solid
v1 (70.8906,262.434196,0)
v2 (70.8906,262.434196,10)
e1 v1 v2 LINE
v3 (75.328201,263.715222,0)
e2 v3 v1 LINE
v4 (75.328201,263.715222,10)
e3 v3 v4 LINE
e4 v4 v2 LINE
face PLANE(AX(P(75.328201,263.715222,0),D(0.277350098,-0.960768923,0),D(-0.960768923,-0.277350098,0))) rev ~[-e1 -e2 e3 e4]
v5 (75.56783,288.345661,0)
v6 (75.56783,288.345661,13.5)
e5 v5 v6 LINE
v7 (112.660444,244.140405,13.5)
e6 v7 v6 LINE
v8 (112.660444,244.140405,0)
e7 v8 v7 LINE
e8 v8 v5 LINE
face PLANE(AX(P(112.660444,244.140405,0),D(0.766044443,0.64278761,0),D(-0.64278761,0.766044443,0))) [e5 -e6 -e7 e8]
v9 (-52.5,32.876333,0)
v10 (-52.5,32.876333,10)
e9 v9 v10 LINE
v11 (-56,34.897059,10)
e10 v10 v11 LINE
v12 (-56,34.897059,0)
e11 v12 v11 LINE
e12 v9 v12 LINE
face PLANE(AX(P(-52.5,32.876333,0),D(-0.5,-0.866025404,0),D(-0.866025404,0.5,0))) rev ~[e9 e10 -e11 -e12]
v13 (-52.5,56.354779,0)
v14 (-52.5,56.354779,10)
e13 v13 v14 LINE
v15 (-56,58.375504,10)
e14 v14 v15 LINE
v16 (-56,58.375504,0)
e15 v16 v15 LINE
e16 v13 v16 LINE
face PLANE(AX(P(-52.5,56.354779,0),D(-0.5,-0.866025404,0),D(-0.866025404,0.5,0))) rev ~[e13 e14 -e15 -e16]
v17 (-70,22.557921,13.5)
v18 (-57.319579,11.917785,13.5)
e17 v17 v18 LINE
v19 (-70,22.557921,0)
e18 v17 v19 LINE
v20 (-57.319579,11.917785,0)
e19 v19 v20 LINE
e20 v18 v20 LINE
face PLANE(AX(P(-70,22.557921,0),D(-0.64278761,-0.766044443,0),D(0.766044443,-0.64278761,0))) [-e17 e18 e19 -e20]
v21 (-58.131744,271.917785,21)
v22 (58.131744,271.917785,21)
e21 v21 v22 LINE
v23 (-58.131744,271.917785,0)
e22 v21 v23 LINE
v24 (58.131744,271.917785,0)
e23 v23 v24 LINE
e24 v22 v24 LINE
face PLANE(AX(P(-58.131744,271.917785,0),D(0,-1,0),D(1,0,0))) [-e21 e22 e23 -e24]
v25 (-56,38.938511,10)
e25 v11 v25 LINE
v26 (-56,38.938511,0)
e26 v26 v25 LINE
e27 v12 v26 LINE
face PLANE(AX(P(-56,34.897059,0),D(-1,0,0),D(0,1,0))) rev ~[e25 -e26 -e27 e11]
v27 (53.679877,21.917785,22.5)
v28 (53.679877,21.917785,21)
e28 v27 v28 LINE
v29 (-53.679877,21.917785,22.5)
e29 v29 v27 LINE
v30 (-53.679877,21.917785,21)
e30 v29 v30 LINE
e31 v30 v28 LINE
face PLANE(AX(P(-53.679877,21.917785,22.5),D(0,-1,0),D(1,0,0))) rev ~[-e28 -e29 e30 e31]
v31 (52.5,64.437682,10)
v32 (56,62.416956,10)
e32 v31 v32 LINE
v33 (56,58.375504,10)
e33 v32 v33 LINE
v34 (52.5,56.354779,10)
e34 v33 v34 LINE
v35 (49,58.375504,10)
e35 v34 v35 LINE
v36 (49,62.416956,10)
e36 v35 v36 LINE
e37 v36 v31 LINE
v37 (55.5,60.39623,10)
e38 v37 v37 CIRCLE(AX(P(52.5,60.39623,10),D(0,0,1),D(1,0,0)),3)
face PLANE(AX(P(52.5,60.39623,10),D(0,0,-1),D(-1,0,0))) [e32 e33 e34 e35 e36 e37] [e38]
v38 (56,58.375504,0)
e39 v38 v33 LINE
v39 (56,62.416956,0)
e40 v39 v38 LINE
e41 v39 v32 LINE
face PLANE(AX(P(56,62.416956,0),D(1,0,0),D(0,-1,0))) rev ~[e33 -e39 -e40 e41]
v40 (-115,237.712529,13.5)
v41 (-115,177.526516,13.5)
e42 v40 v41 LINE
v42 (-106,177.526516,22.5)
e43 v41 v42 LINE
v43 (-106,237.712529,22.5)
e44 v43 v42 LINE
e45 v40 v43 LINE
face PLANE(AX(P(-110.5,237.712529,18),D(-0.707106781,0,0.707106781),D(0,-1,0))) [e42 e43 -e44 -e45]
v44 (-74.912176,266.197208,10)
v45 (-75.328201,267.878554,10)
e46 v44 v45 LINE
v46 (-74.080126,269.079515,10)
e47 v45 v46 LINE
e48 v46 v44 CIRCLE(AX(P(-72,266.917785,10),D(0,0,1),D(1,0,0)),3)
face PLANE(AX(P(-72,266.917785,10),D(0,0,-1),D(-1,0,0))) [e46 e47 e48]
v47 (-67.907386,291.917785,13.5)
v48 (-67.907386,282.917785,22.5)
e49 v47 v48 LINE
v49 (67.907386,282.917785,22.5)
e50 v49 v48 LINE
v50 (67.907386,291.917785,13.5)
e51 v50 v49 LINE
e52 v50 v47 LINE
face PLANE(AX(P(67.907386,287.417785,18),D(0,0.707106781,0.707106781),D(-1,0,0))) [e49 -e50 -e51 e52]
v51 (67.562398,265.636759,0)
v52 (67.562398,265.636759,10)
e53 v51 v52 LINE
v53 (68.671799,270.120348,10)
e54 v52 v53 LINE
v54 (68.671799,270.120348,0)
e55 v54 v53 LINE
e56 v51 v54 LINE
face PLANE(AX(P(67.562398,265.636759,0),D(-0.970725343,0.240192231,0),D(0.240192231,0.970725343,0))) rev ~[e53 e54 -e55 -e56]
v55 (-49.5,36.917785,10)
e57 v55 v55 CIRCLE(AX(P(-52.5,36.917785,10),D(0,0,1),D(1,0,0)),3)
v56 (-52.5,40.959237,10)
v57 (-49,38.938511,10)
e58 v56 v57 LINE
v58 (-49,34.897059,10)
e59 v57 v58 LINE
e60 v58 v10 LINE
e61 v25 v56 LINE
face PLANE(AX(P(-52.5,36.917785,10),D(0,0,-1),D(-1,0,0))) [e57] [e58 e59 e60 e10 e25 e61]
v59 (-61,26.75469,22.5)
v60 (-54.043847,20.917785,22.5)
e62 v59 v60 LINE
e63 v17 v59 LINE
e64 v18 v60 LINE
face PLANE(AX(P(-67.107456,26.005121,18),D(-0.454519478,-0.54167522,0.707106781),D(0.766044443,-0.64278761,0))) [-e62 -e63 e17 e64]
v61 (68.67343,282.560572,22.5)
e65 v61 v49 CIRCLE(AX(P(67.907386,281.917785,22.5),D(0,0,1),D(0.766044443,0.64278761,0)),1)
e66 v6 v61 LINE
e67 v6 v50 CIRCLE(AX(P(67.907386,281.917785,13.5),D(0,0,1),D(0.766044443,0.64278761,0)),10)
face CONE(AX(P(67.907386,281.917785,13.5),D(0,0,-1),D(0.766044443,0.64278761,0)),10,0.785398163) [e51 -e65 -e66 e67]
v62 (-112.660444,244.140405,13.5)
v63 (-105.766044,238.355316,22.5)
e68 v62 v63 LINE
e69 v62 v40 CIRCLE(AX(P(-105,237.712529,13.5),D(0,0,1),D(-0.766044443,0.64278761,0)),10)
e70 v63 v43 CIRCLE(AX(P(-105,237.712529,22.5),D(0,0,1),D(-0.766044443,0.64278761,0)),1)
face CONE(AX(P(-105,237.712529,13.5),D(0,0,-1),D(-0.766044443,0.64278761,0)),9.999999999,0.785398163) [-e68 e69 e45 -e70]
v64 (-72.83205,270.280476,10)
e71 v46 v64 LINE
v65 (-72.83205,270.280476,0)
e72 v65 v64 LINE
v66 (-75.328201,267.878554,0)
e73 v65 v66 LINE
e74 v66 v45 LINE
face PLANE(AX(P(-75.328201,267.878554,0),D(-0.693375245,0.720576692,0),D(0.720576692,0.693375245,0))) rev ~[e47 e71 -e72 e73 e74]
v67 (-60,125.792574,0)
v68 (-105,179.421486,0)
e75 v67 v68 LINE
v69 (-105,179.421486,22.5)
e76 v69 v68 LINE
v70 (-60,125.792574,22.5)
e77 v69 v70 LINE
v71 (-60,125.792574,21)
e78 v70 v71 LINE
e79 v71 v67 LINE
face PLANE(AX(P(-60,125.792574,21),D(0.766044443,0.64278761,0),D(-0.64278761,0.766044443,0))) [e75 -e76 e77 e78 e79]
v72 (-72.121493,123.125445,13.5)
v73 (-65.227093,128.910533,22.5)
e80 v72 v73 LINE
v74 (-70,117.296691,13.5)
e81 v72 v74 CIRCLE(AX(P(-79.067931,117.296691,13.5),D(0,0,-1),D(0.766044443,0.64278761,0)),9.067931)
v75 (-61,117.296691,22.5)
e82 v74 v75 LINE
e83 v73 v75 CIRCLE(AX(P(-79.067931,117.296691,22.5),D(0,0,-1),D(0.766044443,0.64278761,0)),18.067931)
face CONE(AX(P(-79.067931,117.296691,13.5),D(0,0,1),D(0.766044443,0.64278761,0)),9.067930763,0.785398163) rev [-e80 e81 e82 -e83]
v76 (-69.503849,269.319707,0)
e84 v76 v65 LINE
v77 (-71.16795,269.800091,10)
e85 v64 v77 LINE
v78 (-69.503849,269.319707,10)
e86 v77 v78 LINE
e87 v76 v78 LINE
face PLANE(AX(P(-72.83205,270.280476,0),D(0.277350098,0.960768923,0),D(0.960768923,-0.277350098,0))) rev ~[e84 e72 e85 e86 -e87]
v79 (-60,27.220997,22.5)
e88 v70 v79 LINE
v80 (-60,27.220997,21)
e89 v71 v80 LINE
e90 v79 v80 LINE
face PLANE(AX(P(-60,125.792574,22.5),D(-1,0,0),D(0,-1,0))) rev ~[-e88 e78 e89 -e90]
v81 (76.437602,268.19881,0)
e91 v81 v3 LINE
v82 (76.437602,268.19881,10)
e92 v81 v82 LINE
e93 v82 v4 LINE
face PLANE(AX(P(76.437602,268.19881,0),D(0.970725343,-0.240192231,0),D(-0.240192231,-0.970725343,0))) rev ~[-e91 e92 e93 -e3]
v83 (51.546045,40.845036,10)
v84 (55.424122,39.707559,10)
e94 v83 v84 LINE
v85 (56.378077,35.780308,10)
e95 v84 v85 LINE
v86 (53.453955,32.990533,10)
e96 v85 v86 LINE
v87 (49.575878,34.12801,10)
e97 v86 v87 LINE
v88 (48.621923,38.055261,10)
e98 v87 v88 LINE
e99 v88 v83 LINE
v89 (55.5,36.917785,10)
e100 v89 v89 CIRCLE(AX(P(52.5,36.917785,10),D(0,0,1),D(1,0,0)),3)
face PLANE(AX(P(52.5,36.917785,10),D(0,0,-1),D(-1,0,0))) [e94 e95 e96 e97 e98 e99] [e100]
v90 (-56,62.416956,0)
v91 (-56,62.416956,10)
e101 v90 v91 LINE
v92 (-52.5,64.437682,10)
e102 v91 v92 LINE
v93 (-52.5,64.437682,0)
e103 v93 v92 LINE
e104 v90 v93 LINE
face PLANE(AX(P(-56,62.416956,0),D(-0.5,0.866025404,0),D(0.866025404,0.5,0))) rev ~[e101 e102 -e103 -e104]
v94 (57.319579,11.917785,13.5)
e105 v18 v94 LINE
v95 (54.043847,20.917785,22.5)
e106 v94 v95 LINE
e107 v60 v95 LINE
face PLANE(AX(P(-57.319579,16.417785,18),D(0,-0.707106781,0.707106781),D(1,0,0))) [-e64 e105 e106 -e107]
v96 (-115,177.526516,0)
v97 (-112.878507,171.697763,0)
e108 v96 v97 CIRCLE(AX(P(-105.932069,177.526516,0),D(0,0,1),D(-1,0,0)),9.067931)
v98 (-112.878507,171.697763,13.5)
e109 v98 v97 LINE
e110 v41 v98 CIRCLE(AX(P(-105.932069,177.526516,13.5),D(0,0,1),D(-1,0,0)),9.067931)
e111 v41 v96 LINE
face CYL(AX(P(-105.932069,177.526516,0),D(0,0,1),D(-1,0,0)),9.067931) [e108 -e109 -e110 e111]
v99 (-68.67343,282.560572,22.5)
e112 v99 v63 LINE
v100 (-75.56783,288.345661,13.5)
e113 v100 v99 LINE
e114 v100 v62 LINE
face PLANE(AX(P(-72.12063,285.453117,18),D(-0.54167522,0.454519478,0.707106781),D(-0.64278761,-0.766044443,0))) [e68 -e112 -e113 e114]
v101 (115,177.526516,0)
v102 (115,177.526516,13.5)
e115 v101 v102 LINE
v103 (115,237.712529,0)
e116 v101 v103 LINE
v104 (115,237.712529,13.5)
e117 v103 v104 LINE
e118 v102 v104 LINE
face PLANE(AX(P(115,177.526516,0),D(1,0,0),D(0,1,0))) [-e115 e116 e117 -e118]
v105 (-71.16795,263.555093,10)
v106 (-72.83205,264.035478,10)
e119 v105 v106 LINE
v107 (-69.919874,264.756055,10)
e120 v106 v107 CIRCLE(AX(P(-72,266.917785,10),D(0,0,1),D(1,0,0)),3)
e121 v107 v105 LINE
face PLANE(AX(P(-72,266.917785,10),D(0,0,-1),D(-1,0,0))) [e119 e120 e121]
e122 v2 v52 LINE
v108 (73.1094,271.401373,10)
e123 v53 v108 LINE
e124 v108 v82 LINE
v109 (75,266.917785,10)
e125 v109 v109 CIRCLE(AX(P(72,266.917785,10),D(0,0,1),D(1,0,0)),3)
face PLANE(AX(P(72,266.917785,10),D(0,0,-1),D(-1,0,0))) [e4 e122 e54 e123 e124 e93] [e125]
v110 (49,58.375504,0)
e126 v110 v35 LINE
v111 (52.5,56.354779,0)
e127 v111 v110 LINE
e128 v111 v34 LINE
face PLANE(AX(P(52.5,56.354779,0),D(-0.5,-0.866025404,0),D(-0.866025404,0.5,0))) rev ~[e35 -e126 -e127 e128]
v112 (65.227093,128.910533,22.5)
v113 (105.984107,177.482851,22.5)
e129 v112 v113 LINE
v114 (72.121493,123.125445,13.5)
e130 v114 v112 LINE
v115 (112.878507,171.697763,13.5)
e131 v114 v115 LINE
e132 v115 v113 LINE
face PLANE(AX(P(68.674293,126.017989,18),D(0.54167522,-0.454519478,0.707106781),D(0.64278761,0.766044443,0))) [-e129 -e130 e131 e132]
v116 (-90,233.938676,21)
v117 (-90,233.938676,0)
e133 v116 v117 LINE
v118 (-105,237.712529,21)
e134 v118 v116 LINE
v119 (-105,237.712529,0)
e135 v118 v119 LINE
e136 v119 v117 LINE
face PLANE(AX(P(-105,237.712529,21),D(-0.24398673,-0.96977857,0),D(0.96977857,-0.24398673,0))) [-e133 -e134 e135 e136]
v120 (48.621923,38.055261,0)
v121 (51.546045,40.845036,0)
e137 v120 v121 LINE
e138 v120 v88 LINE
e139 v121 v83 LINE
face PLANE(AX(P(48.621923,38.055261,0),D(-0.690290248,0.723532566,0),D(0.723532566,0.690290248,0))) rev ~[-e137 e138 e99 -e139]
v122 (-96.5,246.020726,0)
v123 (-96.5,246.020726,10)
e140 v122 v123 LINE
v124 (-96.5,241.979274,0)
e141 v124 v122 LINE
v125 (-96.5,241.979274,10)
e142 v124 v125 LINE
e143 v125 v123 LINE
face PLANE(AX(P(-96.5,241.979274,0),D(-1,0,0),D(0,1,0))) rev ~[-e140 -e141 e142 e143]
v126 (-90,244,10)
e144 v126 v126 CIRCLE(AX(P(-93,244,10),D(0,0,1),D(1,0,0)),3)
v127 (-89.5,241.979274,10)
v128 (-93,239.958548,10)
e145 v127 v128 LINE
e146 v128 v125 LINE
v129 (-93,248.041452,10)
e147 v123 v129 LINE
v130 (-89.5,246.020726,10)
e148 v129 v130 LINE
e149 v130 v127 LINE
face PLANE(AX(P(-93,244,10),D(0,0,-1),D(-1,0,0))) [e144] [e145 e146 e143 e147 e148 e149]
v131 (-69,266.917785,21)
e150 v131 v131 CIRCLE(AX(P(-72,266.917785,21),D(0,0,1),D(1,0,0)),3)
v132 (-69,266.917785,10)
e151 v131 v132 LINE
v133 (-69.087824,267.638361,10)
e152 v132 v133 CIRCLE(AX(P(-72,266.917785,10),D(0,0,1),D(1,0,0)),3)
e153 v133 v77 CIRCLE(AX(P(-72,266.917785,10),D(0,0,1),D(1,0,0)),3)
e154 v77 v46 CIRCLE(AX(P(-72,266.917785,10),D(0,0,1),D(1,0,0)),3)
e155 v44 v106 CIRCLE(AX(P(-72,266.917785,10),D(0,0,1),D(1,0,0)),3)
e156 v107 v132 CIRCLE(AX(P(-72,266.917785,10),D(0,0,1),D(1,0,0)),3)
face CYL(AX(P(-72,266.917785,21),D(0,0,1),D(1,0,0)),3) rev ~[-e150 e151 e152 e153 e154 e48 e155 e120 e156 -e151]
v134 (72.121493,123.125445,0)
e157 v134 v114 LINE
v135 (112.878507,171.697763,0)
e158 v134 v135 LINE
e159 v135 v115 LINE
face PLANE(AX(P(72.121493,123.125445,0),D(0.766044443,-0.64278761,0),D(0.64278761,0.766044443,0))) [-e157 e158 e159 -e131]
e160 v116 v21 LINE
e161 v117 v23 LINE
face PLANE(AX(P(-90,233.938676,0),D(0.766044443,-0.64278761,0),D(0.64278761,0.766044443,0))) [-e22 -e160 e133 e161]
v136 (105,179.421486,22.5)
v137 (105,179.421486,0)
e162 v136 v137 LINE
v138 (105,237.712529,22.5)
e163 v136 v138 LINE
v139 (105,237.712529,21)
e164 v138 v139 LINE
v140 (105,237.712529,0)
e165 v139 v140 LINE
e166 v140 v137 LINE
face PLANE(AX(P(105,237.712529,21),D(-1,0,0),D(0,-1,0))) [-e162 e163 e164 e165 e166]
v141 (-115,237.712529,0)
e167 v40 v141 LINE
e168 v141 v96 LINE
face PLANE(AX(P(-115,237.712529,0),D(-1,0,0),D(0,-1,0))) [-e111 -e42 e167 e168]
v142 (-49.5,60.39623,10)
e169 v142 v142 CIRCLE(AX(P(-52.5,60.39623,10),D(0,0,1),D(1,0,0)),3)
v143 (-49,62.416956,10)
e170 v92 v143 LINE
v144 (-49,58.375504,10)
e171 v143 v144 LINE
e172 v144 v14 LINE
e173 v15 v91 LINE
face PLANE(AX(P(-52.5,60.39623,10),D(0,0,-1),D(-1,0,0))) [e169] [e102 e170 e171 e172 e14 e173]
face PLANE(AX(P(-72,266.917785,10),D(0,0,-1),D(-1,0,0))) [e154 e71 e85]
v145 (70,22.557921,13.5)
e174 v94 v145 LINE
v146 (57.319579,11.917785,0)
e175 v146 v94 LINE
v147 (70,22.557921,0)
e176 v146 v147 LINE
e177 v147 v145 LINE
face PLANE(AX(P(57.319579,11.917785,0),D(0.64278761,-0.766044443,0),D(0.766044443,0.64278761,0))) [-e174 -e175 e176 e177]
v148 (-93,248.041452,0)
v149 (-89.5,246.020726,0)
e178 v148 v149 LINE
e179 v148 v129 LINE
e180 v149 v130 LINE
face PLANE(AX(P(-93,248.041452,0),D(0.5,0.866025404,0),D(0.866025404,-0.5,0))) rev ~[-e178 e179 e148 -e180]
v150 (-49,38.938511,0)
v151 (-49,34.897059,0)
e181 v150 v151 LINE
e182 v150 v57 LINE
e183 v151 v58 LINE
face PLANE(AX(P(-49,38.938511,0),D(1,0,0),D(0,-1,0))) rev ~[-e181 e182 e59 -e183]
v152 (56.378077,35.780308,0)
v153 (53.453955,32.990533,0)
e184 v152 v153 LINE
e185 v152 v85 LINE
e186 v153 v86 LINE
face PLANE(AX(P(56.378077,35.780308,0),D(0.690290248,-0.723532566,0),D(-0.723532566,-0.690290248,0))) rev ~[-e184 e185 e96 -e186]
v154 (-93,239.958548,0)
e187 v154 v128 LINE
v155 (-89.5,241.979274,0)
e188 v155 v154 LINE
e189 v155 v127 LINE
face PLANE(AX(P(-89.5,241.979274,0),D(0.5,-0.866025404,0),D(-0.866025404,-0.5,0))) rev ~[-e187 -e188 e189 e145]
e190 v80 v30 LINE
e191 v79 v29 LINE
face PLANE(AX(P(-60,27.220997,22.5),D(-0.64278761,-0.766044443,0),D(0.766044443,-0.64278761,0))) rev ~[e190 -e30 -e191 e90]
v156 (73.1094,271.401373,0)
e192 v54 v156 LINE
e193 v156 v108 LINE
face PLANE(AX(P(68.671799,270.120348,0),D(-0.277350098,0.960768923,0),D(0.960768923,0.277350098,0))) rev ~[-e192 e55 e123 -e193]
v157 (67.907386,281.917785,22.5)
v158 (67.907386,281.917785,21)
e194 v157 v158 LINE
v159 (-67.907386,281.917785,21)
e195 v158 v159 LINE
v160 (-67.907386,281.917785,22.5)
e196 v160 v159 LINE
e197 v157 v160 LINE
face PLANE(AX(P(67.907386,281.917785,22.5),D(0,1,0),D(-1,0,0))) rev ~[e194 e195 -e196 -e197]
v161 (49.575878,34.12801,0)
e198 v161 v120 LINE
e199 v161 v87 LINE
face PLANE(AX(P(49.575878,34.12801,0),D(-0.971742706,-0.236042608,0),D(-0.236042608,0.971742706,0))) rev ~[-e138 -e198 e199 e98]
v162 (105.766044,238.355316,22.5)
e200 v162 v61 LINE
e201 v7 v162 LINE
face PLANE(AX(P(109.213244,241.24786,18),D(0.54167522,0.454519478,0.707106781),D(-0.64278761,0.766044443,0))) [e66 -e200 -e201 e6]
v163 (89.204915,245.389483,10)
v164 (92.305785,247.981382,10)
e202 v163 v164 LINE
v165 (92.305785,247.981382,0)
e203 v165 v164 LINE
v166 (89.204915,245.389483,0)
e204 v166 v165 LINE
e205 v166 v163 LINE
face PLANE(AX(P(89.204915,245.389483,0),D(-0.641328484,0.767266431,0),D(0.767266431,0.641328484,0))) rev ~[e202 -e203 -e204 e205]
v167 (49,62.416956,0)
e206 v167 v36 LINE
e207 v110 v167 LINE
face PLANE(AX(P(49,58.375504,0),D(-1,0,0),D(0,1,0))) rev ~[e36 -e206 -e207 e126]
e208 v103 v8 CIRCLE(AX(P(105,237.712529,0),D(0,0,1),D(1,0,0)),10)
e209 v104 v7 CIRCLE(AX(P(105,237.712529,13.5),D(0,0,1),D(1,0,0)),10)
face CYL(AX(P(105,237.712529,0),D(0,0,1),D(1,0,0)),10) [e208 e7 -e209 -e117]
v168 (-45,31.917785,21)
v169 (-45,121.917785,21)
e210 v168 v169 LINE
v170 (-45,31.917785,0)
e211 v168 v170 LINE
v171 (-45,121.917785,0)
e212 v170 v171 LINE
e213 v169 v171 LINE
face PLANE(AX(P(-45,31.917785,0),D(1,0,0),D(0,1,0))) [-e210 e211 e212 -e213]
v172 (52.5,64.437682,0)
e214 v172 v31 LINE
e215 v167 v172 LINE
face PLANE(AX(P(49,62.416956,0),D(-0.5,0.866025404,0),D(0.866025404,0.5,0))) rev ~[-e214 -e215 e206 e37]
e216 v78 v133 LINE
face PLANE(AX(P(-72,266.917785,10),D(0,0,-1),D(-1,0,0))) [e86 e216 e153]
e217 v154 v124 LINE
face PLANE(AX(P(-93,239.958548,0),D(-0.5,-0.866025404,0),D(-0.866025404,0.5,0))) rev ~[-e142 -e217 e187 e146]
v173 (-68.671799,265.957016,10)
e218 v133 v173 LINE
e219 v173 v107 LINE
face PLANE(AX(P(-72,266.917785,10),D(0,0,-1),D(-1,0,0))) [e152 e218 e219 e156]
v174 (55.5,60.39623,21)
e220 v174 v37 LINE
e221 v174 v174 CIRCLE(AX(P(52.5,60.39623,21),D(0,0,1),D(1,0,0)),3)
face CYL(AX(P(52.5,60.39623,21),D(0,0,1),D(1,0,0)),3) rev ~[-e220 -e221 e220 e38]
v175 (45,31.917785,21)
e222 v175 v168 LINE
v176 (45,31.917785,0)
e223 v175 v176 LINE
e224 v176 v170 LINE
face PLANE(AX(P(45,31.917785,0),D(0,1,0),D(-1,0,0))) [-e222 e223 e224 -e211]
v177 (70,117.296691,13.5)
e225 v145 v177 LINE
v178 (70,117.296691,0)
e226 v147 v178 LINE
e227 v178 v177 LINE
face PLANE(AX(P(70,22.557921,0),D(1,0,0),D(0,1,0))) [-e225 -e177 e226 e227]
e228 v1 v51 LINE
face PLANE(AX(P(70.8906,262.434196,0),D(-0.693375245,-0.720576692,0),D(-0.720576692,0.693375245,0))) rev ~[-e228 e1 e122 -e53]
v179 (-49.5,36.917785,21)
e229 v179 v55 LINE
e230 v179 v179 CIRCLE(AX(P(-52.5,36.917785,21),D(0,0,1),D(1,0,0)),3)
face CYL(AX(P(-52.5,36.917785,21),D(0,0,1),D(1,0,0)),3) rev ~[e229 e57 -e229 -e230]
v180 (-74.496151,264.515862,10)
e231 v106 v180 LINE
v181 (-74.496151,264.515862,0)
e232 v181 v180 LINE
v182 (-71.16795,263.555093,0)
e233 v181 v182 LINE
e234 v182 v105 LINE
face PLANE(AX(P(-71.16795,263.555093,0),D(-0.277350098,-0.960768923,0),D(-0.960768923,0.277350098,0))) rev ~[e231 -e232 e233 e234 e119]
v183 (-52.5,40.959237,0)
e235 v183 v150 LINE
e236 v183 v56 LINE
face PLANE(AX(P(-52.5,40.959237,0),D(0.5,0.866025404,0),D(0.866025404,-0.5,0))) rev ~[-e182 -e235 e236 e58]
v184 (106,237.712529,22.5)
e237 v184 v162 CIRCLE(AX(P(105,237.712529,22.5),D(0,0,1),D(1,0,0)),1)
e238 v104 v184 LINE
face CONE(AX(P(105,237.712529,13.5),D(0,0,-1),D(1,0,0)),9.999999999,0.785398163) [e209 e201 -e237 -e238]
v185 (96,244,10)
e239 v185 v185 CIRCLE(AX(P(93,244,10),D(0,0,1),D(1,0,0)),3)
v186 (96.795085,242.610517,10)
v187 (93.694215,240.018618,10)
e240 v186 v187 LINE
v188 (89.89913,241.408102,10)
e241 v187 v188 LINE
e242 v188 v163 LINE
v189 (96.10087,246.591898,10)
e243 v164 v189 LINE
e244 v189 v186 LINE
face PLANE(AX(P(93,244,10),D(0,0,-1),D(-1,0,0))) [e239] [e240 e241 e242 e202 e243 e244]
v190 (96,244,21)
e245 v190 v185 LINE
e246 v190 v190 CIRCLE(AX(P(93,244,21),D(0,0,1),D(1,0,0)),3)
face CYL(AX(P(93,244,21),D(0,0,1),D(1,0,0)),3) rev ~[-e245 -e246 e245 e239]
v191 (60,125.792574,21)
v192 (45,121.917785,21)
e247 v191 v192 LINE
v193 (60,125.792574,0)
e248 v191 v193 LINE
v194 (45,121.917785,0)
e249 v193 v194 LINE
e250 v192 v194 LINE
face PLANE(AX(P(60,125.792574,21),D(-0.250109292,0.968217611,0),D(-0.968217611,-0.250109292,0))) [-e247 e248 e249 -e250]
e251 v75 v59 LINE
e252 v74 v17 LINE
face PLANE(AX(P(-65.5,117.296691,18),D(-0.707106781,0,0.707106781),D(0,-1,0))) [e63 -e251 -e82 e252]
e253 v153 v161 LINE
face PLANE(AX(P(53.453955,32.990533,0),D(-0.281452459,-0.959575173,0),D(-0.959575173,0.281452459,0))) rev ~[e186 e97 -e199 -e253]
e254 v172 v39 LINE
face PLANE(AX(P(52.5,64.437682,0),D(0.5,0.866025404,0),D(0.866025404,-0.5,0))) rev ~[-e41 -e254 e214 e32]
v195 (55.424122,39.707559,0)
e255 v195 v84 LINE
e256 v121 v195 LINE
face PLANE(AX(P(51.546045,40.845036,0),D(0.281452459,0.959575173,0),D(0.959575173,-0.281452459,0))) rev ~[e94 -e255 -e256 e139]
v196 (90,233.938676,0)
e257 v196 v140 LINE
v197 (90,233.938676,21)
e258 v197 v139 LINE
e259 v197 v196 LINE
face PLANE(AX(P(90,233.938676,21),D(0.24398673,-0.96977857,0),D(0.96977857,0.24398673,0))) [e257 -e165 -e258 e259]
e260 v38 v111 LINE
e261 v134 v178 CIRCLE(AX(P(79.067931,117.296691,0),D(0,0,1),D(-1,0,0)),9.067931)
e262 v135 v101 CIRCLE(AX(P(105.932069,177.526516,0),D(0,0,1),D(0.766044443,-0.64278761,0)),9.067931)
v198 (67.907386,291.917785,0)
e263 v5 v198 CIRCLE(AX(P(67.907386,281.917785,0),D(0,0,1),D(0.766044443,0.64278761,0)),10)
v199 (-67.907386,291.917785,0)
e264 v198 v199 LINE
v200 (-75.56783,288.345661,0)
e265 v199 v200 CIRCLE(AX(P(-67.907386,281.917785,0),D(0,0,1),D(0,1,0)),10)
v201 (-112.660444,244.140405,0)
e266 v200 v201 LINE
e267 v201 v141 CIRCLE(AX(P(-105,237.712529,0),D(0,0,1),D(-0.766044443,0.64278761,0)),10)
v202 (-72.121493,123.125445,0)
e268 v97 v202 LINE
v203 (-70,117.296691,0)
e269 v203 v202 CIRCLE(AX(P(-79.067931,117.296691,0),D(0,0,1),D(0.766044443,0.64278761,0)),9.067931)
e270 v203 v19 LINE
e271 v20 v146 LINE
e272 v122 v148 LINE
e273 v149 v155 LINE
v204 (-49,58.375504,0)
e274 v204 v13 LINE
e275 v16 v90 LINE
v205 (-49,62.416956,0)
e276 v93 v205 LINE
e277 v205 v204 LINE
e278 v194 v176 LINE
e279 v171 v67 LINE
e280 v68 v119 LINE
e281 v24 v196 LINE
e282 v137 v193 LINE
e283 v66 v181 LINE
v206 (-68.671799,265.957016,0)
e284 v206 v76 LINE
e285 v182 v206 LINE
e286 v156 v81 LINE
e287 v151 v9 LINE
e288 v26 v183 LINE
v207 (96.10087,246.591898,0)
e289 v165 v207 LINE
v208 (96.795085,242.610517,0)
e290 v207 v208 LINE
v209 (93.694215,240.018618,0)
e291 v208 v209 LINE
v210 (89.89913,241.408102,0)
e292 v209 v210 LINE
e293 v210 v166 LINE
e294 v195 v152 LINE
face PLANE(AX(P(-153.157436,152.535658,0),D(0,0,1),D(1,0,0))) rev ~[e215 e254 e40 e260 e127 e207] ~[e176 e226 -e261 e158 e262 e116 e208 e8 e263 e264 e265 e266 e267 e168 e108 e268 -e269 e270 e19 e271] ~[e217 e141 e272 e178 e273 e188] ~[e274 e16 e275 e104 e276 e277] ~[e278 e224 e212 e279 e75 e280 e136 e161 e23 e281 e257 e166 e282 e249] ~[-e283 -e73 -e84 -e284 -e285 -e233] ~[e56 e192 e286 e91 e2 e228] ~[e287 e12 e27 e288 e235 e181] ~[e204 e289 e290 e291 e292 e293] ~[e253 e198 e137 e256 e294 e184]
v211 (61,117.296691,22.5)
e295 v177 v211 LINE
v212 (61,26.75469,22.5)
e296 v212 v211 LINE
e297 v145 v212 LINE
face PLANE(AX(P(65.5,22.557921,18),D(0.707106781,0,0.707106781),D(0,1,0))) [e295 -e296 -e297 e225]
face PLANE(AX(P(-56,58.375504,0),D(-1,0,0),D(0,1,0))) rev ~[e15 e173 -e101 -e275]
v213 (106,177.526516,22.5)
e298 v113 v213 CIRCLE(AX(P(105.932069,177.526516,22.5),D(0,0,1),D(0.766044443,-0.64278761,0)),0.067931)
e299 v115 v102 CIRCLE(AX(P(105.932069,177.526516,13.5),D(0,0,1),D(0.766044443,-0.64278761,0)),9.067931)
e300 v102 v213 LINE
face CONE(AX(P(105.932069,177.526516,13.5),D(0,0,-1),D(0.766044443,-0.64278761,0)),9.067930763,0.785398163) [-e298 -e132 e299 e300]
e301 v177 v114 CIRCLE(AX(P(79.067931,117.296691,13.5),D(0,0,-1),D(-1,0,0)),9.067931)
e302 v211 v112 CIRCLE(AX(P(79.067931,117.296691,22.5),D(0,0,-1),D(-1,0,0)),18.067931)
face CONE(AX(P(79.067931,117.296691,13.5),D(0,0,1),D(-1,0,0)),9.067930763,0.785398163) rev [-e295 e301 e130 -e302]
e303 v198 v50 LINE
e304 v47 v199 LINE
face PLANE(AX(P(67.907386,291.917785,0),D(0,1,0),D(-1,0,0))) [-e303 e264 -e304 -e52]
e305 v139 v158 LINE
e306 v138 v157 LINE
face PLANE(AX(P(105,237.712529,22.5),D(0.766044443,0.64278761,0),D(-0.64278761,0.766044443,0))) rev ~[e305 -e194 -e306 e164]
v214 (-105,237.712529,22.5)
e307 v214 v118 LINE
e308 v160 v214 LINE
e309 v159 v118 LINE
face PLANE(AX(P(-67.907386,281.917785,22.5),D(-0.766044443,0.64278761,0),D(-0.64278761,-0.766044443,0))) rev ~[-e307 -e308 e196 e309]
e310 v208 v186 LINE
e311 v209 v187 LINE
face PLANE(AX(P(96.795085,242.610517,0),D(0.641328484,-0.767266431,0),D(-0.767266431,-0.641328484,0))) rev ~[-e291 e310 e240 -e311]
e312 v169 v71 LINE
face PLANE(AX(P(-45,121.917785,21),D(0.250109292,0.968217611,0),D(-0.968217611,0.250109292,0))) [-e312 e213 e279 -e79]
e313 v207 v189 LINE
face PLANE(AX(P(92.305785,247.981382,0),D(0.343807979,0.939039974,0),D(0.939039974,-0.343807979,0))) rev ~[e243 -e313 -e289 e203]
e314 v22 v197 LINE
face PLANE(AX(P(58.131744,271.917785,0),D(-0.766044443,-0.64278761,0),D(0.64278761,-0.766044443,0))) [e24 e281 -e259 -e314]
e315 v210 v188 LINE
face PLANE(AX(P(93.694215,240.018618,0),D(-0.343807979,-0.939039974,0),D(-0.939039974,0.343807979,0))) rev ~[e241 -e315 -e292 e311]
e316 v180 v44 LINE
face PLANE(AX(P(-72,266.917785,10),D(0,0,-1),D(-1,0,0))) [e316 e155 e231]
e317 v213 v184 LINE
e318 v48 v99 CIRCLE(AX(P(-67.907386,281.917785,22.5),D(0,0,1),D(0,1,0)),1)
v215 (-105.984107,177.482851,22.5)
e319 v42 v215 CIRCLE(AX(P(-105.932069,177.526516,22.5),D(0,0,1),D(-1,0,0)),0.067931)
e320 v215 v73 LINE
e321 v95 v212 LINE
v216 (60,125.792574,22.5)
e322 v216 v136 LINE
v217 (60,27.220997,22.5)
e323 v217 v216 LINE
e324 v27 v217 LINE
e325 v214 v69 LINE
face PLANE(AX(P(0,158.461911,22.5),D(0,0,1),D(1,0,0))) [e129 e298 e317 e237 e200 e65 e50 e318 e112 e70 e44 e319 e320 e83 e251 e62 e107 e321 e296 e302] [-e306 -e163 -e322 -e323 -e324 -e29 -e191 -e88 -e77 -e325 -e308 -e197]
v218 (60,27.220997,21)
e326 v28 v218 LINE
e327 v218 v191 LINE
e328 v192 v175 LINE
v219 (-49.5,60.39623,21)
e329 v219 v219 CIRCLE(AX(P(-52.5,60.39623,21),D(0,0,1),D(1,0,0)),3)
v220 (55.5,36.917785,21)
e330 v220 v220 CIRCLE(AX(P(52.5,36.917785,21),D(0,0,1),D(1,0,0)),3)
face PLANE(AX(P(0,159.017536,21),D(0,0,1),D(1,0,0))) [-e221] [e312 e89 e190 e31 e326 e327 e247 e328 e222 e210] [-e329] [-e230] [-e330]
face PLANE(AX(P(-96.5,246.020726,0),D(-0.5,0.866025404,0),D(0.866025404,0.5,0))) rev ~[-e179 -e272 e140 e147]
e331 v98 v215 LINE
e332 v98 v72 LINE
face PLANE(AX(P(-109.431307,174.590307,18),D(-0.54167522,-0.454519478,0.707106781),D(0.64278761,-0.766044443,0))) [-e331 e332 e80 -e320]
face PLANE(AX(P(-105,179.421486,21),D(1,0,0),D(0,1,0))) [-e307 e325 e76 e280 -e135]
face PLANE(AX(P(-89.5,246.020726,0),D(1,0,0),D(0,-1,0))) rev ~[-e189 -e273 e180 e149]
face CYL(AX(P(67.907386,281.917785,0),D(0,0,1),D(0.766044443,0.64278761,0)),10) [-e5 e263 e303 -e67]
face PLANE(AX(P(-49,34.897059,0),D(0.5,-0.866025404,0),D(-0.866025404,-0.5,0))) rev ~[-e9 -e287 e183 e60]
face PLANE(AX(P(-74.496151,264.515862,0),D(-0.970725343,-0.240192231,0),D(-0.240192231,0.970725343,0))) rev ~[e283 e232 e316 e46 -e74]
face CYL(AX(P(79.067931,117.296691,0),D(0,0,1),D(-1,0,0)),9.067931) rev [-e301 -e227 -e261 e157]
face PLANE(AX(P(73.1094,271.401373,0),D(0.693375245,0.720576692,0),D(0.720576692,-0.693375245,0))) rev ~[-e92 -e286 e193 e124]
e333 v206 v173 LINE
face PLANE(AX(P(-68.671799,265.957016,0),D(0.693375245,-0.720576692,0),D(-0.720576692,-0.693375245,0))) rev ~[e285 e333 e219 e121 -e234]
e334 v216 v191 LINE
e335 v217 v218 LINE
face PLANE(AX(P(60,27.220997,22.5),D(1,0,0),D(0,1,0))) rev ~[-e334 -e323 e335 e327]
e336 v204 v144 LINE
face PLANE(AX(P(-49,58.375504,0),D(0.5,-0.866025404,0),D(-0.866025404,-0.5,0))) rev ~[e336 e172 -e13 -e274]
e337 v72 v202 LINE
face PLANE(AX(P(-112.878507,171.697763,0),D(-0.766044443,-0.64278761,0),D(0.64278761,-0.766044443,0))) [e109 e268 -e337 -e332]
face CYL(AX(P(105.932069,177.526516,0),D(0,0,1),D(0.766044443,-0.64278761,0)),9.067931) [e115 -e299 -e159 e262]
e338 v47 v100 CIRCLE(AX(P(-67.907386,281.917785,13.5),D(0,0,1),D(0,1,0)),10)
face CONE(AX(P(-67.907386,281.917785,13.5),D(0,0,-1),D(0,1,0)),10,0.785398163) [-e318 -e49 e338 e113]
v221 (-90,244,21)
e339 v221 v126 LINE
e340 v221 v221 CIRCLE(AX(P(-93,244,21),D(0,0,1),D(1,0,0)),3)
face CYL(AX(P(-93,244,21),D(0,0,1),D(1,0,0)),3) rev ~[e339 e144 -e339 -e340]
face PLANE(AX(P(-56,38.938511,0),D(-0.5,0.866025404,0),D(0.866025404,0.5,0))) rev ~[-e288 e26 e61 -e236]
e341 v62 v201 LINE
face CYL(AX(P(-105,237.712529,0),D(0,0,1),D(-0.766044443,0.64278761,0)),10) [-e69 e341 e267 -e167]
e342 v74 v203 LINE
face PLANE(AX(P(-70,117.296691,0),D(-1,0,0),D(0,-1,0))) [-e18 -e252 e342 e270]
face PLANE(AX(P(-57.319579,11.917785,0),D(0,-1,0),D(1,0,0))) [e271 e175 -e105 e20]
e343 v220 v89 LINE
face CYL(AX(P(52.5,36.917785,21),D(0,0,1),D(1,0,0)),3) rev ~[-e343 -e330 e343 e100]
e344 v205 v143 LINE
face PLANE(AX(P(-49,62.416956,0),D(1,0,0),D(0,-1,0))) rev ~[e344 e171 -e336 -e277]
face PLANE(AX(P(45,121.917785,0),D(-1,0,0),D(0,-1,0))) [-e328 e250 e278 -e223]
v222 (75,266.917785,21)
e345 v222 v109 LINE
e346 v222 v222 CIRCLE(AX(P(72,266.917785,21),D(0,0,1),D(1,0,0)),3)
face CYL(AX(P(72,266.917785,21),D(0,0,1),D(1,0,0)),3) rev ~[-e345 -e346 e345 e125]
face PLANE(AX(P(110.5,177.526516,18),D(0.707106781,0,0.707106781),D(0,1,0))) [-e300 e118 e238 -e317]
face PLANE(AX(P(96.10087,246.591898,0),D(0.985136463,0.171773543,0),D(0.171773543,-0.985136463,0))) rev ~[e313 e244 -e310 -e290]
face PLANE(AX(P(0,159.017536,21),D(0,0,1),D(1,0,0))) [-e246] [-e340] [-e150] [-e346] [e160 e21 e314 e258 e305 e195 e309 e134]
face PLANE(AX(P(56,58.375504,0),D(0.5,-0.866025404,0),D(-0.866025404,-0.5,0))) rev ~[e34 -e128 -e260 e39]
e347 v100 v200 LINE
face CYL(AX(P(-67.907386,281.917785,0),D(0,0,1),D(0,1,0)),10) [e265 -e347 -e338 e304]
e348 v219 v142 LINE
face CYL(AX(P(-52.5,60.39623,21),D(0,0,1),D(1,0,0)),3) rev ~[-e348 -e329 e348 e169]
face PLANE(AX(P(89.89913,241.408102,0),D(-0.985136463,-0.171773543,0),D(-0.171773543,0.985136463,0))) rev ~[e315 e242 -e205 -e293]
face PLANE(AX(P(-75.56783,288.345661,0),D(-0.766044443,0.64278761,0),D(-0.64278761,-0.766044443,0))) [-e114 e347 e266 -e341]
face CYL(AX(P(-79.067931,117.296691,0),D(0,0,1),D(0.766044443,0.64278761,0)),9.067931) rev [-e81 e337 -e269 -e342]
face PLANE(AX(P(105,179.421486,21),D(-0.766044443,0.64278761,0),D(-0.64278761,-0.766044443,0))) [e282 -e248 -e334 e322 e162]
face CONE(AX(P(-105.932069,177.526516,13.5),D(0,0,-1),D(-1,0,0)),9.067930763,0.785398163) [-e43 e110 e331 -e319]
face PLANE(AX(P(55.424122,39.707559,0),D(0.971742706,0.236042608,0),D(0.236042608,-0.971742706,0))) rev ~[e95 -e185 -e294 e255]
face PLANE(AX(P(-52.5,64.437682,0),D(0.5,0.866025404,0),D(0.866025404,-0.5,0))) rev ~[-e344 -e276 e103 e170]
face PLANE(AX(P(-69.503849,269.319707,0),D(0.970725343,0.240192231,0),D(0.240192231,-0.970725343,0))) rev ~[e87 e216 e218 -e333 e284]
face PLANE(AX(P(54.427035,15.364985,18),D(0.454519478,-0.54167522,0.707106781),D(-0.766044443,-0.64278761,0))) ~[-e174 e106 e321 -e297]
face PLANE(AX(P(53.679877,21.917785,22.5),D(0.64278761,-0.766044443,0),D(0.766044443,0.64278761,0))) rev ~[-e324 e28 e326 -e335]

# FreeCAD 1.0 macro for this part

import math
import FreeCAD as App
import Part
import Sketcher
from FreeCAD import Vector
Q = App.Units.Quantity


def edges_at(feature, points):
    """Names of the edges that pass closest to the given points."""
    edges = feature.Shape.Edges
    near = lambda p: min(range(len(edges)), key=lambda i: edges[i].distToShape(Part.Vertex(*p))[0])
    return sorted({f"Edge{near(p) + 1}" for p in points})


def add_polygon(sketch, points):
    """Adds a closed chain of lines whose ends are joined by coincident constraints."""
    first, n = sketch.GeometryCount, len(points)
    for a, b in zip(points, points[1:] + points[:1]):
        sketch.addGeometry(Part.LineSegment(App.Vector(*a, 0), App.Vector(*b, 0)), False)
    for i in range(n):
        sketch.addConstraint(Sketcher.Constraint("Coincident", first + i, 2, first + (i + 1) % n, 1))

doc = App.newDocument("Part")
params = doc.addObject("Spreadsheet::Sheet", "Params")
for row, (alias, value) in enumerate([
    ("sketch1_radius", "10 mm"),
    ("sketch1_width", "90 mm"),
    ("pad1_length", "45 mm"),
    ("chamfer_size", "9 mm"),
    ("pocket1_length", "22.5 mm"),
    ("sketch3_width", "90 mm"),
    ("pocket2_length", "1.5 mm"),
    ("sketch4_diameter", "6 mm"),
    ("pocket4_length", "10 mm"),
], start=1):
    params.set(f"A{row}", alias)
    params.set(f"B{row}", "=" + value)
    params.setAlias(f"B{row}", alias)

body = doc.addObject("PartDesign::Body", "Body")

sketch1 = doc.addObject("Sketcher::SketchObject", "Sketch")
body.addObject(sketch1)
sketch1.AttachmentSupport = (doc.XY_Plane, [""])
sketch1.MapMode = "FlatFace"
sketch1.addGeometry(Part.LineSegment(Vector(-57, 12, 0), Vector(57, 12, 0)), False)
sketch1.addGeometry(Part.LineSegment(Vector(57, 12, 0), Vector(70, 23, 0)), False)
sketch1.addGeometry(Part.LineSegment(Vector(70, 23, 0), Vector(70, 117, 0)), False)
sketch1.addGeometry(Part.ArcOfCircle(Part.Circle(Vector(79, 117, 0), Vector(0, 0, 1), 9), math.radians(140), math.radians(180)), False)
sketch1.addGeometry(Part.LineSegment(Vector(72, 123, 0), Vector(113, 172, 0)), False)
sketch1.addGeometry(Part.ArcOfCircle(Part.Circle(Vector(106, 178, 0), Vector(0, 0, 1), 9), math.radians(-40), math.radians(0)), False)
sketch1.addGeometry(Part.LineSegment(Vector(115, 178, 0), Vector(115, 238, 0)), False)
sketch1.addGeometry(Part.ArcOfCircle(Part.Circle(Vector(105, 238, 0), Vector(0, 0, 1), 10), math.radians(0), math.radians(40)), False)
sketch1.addGeometry(Part.LineSegment(Vector(113, 244, 0), Vector(76, 288, 0)), False)
sketch1.addGeometry(Part.ArcOfCircle(Part.Circle(Vector(68, 282, 0), Vector(0, 0, 1), 10), math.radians(40), math.radians(90)), False)
sketch1.addGeometry(Part.LineSegment(Vector(68, 292, 0), Vector(-68, 292, 0)), False)
sketch1.addGeometry(Part.ArcOfCircle(Part.Circle(Vector(-68, 282, 0), Vector(0, 0, 1), 10), math.radians(90), math.radians(140)), False)
sketch1.addGeometry(Part.LineSegment(Vector(-76, 288, 0), Vector(-113, 244, 0)), False)
sketch1.addGeometry(Part.ArcOfCircle(Part.Circle(Vector(-105, 238, 0), Vector(0, 0, 1), 10), math.radians(140), math.radians(180)), False)
sketch1.addGeometry(Part.LineSegment(Vector(-115, 238, 0), Vector(-115, 178, 0)), False)
sketch1.addGeometry(Part.ArcOfCircle(Part.Circle(Vector(-106, 178, 0), Vector(0, 0, 1), 9), math.radians(180), math.radians(220)), False)
sketch1.addGeometry(Part.LineSegment(Vector(-113, 172, 0), Vector(-72, 123, 0)), False)
sketch1.addGeometry(Part.ArcOfCircle(Part.Circle(Vector(-79, 117, 0), Vector(0, 0, 1), 9), math.radians(0), math.radians(40)), False)
sketch1.addGeometry(Part.LineSegment(Vector(-70, 117, 0), Vector(-70, 23, 0)), False)
sketch1.addGeometry(Part.LineSegment(Vector(-70, 23, 0), Vector(-57, 12, 0)), False)
add_polygon(sketch1, [(-45, 122), (-90, 176), (-90, 234), (-58, 272), (58, 272), (90, 234), (90, 176), (45, 122), (45, 32), (-45, 32)])
sketch1.addConstraint([
    Sketcher.Constraint("Coincident", 0, 2, 1, 1),
    Sketcher.Constraint("Coincident", 1, 2, 2, 1),
    Sketcher.Constraint("Tangent", 2, 2, 3, 2),
    Sketcher.Constraint("Tangent", 3, 1, 4, 1),
    Sketcher.Constraint("Tangent", 4, 2, 5, 1),
    Sketcher.Constraint("Tangent", 5, 2, 6, 1),
    Sketcher.Constraint("Tangent", 6, 2, 7, 1),
    Sketcher.Constraint("Tangent", 7, 2, 8, 1),
    Sketcher.Constraint("Tangent", 8, 2, 9, 1),
    Sketcher.Constraint("Tangent", 9, 2, 10, 1),
    Sketcher.Constraint("Tangent", 10, 2, 11, 1),
    Sketcher.Constraint("Tangent", 11, 2, 12, 1),
    Sketcher.Constraint("Tangent", 12, 2, 13, 1),
    Sketcher.Constraint("Tangent", 13, 2, 14, 1),
    Sketcher.Constraint("Tangent", 14, 2, 15, 1),
    Sketcher.Constraint("Tangent", 15, 2, 16, 1),
    Sketcher.Constraint("Tangent", 16, 2, 17, 2),
    Sketcher.Constraint("Tangent", 17, 1, 18, 1),
    Sketcher.Constraint("Coincident", 18, 2, 19, 1),
    Sketcher.Constraint("Coincident", 19, 2, 0, 1),
    Sketcher.Constraint("Horizontal", 0),
    Sketcher.Constraint("Vertical", 2),
    Sketcher.Constraint("Vertical", 6),
    Sketcher.Constraint("Horizontal", 10),
    Sketcher.Constraint("Vertical", 14),
    Sketcher.Constraint("Vertical", 18),
    Sketcher.Constraint("Vertical", 21),
    Sketcher.Constraint("Horizontal", 23),
    Sketcher.Constraint("Vertical", 25),
    Sketcher.Constraint("Vertical", 27),
    Sketcher.Constraint("Horizontal", 28),
    Sketcher.Constraint("Vertical", 29),
    Sketcher.Constraint("Equal", 3, 5),
    Sketcher.Constraint("Equal", 7, 9),
    Sketcher.Constraint("Equal", 9, 11),
    Sketcher.Constraint("Equal", 11, 13),
    Sketcher.Constraint("Equal", 5, 15),
    Sketcher.Constraint("Equal", 15, 17),
    Sketcher.Constraint("Symmetric", 7, 3, 13, 3, -2),
    Sketcher.Constraint("Symmetric", 3, 3, 17, 3, -2),
    Sketcher.Constraint("Symmetric", 21, 2, 24, 2, -2),
    Sketcher.Constraint("Symmetric", 26, 2, 29, 2, -2),
    Sketcher.Constraint("Perpendicular", 1, 8),
    Sketcher.Constraint("Parallel", 4, 12),
    Sketcher.Constraint("Parallel", 8, 16),
    Sketcher.Constraint("Perpendicular", 12, 19),
    Sketcher.Constraint("Parallel", 16, 20),
    Sketcher.Constraint("Perpendicular", 19, 22),
    Sketcher.Constraint("Parallel", 20, 24),
    Sketcher.Constraint("Parallel", 22, 26),
    Sketcher.Constraint("Horizontal", 5, 3, 15, 3),
    Sketcher.Constraint("Horizontal", 1, 2, 18, 2),
    Sketcher.Constraint("Equal", 28, 27),
    Sketcher.Constraint("Radius", 7, 10.0),
    Sketcher.Constraint("DistanceX", 28, 2, 28, 1, 90.0),
    Sketcher.Constraint("Angle", 1, Q("40 deg")),
    Sketcher.Constraint("DistanceX", -1, 1, 7, 3, 105.0),
    Sketcher.Constraint("DistanceX", -1, 1, 1, 2, 70.0),
    Sketcher.Constraint("DistanceX", 20, 2, -1, 1, 90.0),
    Sketcher.Constraint("DistanceY", 22, 2, 11, 3, 10.0),
    Sketcher.Constraint("DistanceY", 0, 2, 27, 2, 20.0),
    Sketcher.Constraint("Radius", 3, 9.067931),
    Sketcher.Constraint("DistanceX", 0, 1, 0, 2, 114.639159),
    Sketcher.Constraint("DistanceX", 10, 2, 10, 1, 135.814772),
    Sketcher.Constraint("DistanceX", 23, 1, 23, 2, 116.263489),
    Sketcher.Constraint("DistanceY", 2, 1, 2, 2, 94.73877),
    Sketcher.Constraint("DistanceY", 21, 1, 21, 2, 58.39198),
    Sketcher.Constraint("DistanceY", -1, 1, 3, 3, 117.296691),
])
sketch1.setExpression("Constraints[63]", "Params.sketch1_radius")
sketch1.setExpression("Constraints[64]", "Params.sketch1_width")
pad1 = doc.addObject("PartDesign::Pad", "Pad")
body.addObject(pad1)
pad1.Profile = sketch1
pad1.setExpression("Length", "Params.pad1_length")
pad1.Midplane = True
doc.recompute()

chamfer = doc.addObject("PartDesign::Chamfer", "Chamfer")
body.addObject(chamfer)
chamfer.Base = (pad1, edges_at(pad1, [
    (70, 69.927, 22.5),
    (70.547, 120.398, 22.5),
    (92.5, 147.412, 22.5),
    (114.453, 174.425, 22.5),
    (115, 207.62, 22.5),
    (114.397, 241.133, 22.5),
    (94.114, 266.243, 22.5),
    (72.134, 290.981, 22.5),
    (0, 291.918, 22.5),
    (-72.134, 290.981, 22.5),
    (-94.114, 266.243, 22.5),
    (-114.397, 241.133, 22.5),
    (-115, 207.62, 22.5),
    (-114.453, 174.425, 22.5),
    (-92.5, 147.412, 22.5),
    (-70.547, 120.398, 22.5),
    (-70, 69.927, 22.5),
    (-63.66, 17.238, 22.5),
    (0, 11.918, 22.5),
    (63.66, 17.238, 22.5),
]))
chamfer.setExpression("Size", "Params.chamfer_size")

sketch2 = doc.addObject("Sketcher::SketchObject", "Sketch001")
body.addObject(sketch2)
sketch2.AttachmentSupport = (doc.XY_Plane, [""])
sketch2.MapMode = "FlatFace"
add_polygon(sketch2, [(-723, 507), (-723, -202), (416, -202), (416, 507)])
sketch2.addConstraint([
    Sketcher.Constraint("Vertical", 0),
    Sketcher.Constraint("Horizontal", 1),
    Sketcher.Constraint("Vertical", 2),
    Sketcher.Constraint("Horizontal", 3),
    Sketcher.Constraint("DistanceX", 1, 1, 1, 2, 1139.230904),
    Sketcher.Constraint("DistanceY", 0, 2, 0, 1, 709.798034),
    Sketcher.Constraint("DistanceX", 0, 2, -1, 1, 722.772888),
    Sketcher.Constraint("DistanceY", 0, 2, -1, 1, 202.363359),
])
pocket1 = doc.addObject("PartDesign::Pocket", "Pocket")
body.addObject(pocket1)
pocket1.Profile = sketch2
pocket1.setExpression("Length", "Params.pocket1_length")

sketch3 = doc.addObject("Sketcher::SketchObject", "Sketch002")
body.addObject(sketch3)
sketch3.AttachmentSupport = (doc.XY_Plane, [""])
sketch3.MapMode = "FlatFace"
sketch3.AttachmentOffset = App.Placement(Vector(0, 0, 22.5), App.Rotation())
add_polygon(sketch3, [(-60, 27), (-54, 22), (54, 22), (60, 27), (60, 126), (105, 179), (105, 238), (68, 282), (-68, 282), (-105, 238), (-105, 179), (-60, 126)])
add_polygon(sketch3, [(-45, 122), (-90, 176), (-90, 234), (-58, 272), (58, 272), (90, 234), (90, 176), (45, 122), (45, 32), (-45, 32)])
sketch3.addConstraint([
    Sketcher.Constraint("Horizontal", 1),
    Sketcher.Constraint("Vertical", 3),
    Sketcher.Constraint("Vertical", 5),
    Sketcher.Constraint("Horizontal", 7),
    Sketcher.Constraint("Vertical", 9),
    Sketcher.Constraint("Vertical", 11),
    Sketcher.Constraint("Vertical", 13),
    Sketcher.Constraint("Horizontal", 15),
    Sketcher.Constraint("Vertical", 17),
    Sketcher.Constraint("Vertical", 19),
    Sketcher.Constraint("Horizontal", 20),
    Sketcher.Constraint("Vertical", 21),
    Sketcher.Constraint("Symmetric", 5, 2, 8, 2, -2),
    Sketcher.Constraint("Symmetric", 3, 2, 10, 2, -2),
    Sketcher.Constraint("Symmetric", 13, 2, 16, 2, -2),
    Sketcher.Constraint("Symmetric", 18, 2, 21, 2, -2),
    Sketcher.Constraint("Perpendicular", 0, 4),
    Sketcher.Constraint("Perpendicular", 2, 6),
    Sketcher.Constraint("Parallel", 4, 8),
    Sketcher.Constraint("Parallel", 6, 10),
    Sketcher.Constraint("Parallel", 10, 12),
    Sketcher.Constraint("Parallel", 8, 14),
    Sketcher.Constraint("Parallel", 12, 16),
    Sketcher.Constraint("Parallel", 14, 18),
    Sketcher.Constraint("Horizontal", 4, 2, 9, 2),
    Sketcher.Constraint("Horizontal", 2, 2, 11, 2),
    Sketcher.Constraint("Equal", 20, 19),
    Sketcher.Constraint("Equal", 10, 12),
    Sketcher.Constraint("DistanceX", 20, 2, 20, 1, 90.0),
    Sketcher.Constraint("Angle", 0, Q("-40 deg")),
    Sketcher.Constraint("DistanceX", -1, 1, 2, 2, 60.0),
    Sketcher.Constraint("DistanceX", -1, 1, 4, 2, 105.0),
    Sketcher.Constraint("DistanceY", 1, 2, 6, 2, 260.0),
    Sketcher.Constraint("DistanceY", 14, 2, 7, 2, 10.0),
    Sketcher.Constraint("DistanceY", 1, 2, 18, 2, 100.0),
    Sketcher.Constraint("DistanceX", 7, 2, 7, 1, 135.814772),
    Sketcher.Constraint("DistanceX", 15, 1, 15, 2, 116.263489),
    Sketcher.Constraint("DistanceY", 1, 2, 4, 2, 157.503701),
    Sketcher.Constraint("DistanceY", 11, 2, 12, 2, 148.325699),
    Sketcher.Constraint("DistanceY", -1, 1, 5, 2, 237.712529),
])
sketch3.setExpression("Constraints[50]", "Params.sketch3_width")
pocket2 = doc.addObject("PartDesign::Pocket", "Pocket001")
body.addObject(pocket2)
pocket2.Profile = sketch3
pocket2.setExpression("Length", "Params.pocket2_length")

sketch4 = doc.addObject("Sketcher::SketchObject", "Sketch003")
body.addObject(sketch4)
sketch4.AttachmentSupport = (doc.XY_Plane, [""])
sketch4.MapMode = "FlatFace"
sketch4.AttachmentOffset = App.Placement(Vector(0, 0, 21), App.Rotation())
sketch4.addGeometry([
    Part.Circle(Vector(-93, 244, 0), Vector(0, 0, 1), 3),
    Part.Circle(Vector(-52.5, 60.4, 0), Vector(0, 0, 1), 3),
    Part.Circle(Vector(-72, 266.9, 0), Vector(0, 0, 1), 3),
    Part.Circle(Vector(-52.5, 36.9, 0), Vector(0, 0, 1), 3),
    Part.Circle(Vector(52.5, 36.9, 0), Vector(0, 0, 1), 3),
    Part.Circle(Vector(72, 266.9, 0), Vector(0, 0, 1), 3),
    Part.Circle(Vector(52.5, 60.4, 0), Vector(0, 0, 1), 3),
    Part.Circle(Vector(93, 244, 0), Vector(0, 0, 1), 3),
], False)
sketch4.addConstraint([
    Sketcher.Constraint("Equal", 0, 1),
    Sketcher.Constraint("Equal", 1, 2),
    Sketcher.Constraint("Equal", 2, 3),
    Sketcher.Constraint("Equal", 3, 4),
    Sketcher.Constraint("Equal", 4, 5),
    Sketcher.Constraint("Equal", 5, 6),
    Sketcher.Constraint("Equal", 6, 7),
    Sketcher.Constraint("Symmetric", 3, 3, 4, 3, -2),
    Sketcher.Constraint("Symmetric", 2, 3, 5, 3, -2),
    Sketcher.Constraint("Symmetric", 1, 3, 6, 3, -2),
    Sketcher.Constraint("Symmetric", 0, 3, 7, 3, -2),
    Sketcher.Constraint("Vertical", 1, 3, 3, 3),
    Sketcher.Constraint("Diameter", 0, 6.0),
    Sketcher.Constraint("DistanceX", 0, 3, -1, 1, 93.0),
    Sketcher.Constraint("DistanceY", -1, 1, 0, 3, 244.0),
    Sketcher.Constraint("DistanceX", 2, 3, -1, 1, 72.0),
    Sketcher.Constraint("DistanceY", 3, 3, 2, 3, 230.0),
    Sketcher.Constraint("DistanceX", 3, 3, 4, 3, 105.0),
    Sketcher.Constraint("DistanceY", -1, 1, 1, 3, 60.39623),
    Sketcher.Constraint("DistanceY", -1, 1, 2, 3, 266.917785),
])
sketch4.setExpression("Constraints[12]", "Params.sketch4_diameter")
pocket3 = doc.addObject("PartDesign::Pocket", "Pocket002")
body.addObject(pocket3)
pocket3.Profile = sketch4
pocket3.Type = "ThroughAll"

sketch5 = doc.addObject("Sketcher::SketchObject", "Sketch004")
body.addObject(sketch5)
sketch5.AttachmentSupport = (doc.XY_Plane, [""])
sketch5.MapMode = "FlatFace"
add_polygon(sketch5, [(73.1, 271.4), (76.4, 268.2), (75.3, 263.7), (70.9, 262.4), (67.6, 265.6), (68.7, 270.1)])
add_polygon(sketch5, [(92.3, 248), (96.1, 246.6), (96.8, 242.6), (93.7, 240), (89.9, 241.4), (89.2, 245.4)])
add_polygon(sketch5, [(-93, 248), (-89.5, 246), (-89.5, 242), (-93, 240), (-96.5, 242), (-96.5, 246)])
add_polygon(sketch5, [(-72.8, 270.3), (-69.5, 269.3), (-68.7, 266), (-71.2, 263.6), (-74.5, 264.5), (-75.3, 267.9)])
add_polygon(sketch5, [(52.5, 64.4), (56, 62.4), (56, 58.4), (52.5, 56.4), (49, 58.4), (49, 62.4)])
add_polygon(sketch5, [(-52.5, 64.4), (-49, 62.4), (-49, 58.4), (-52.5, 56.4), (-56, 58.4), (-56, 62.4)])
add_polygon(sketch5, [(-52.5, 41), (-49, 38.9), (-49, 34.9), (-52.5, 32.9), (-56, 34.9), (-56, 38.9)])
add_polygon(sketch5, [(51.5, 40.8), (55.4, 39.7), (56.4, 35.8), (53.5, 33), (49.6, 34.1), (48.6, 38.1)])
sketch5.addConstraint([
    Sketcher.Constraint("Vertical", 13),
    Sketcher.Constraint("Vertical", 16),
    Sketcher.Constraint("Vertical", 25),
    Sketcher.Constraint("Vertical", 28),
    Sketcher.Constraint("Vertical", 31),
    Sketcher.Constraint("Vertical", 34),
    Sketcher.Constraint("Vertical", 37),
    Sketcher.Constraint("Vertical", 40),
    Sketcher.Constraint("Symmetric", 28, 2, 30, 2, -2),
    Sketcher.Constraint("Symmetric", 26, 2, 32, 2, -2),
    Sketcher.Constraint("Symmetric", 25, 2, 33, 2, -2),
    Sketcher.Constraint("Symmetric", 29, 2, 35, 2, -2),
    Sketcher.Constraint("Parallel", 0, 3),
    Sketcher.Constraint("Parallel", 1, 4),
    Sketcher.Constraint("Parallel", 2, 5),
    Sketcher.Constraint("Parallel", 6, 9),
    Sketcher.Constraint("Parallel", 7, 10),
    Sketcher.Constraint("Parallel", 8, 11),
    Sketcher.Constraint("Parallel", 12, 15),
    Sketcher.Constraint("Parallel", 14, 17),
    Sketcher.Constraint("Parallel", 18, 21),
    Sketcher.Constraint("Parallel", 19, 22),
    Sketcher.Constraint("Parallel", 20, 23),
    Sketcher.Constraint("Parallel", 15, 24),
    Sketcher.Constraint("Parallel", 17, 26),
    Sketcher.Constraint("Parallel", 24, 27),
    Sketcher.Constraint("Parallel", 26, 29),
    Sketcher.Constraint("Parallel", 27, 30),
    Sketcher.Constraint("Parallel", 29, 32),
    Sketcher.Constraint("Parallel", 32, 35),
    Sketcher.Constraint("Parallel", 33, 36),
    Sketcher.Constraint("Parallel", 35, 38),
    Sketcher.Constraint("Parallel", 36, 39),
    Sketcher.Constraint("Parallel", 38, 41),
    Sketcher.Constraint("Parallel", 42, 45),
    Sketcher.Constraint("Parallel", 43, 46),
    Sketcher.Constraint("Parallel", 44, 47),
    Sketcher.Constraint("Horizontal", 13, 2, 15, 2),
    Sketcher.Constraint("Horizontal", 12, 2, 16, 2),
    Sketcher.Constraint("Horizontal", 25, 2, 27, 2),
    Sketcher.Constraint("Horizontal", 24, 2, 28, 2),
    Sketcher.Constraint("Horizontal", 37, 2, 39, 2),
    Sketcher.Constraint("Horizontal", 36, 2, 40, 2),
    Sketcher.Constraint("Vertical", 31, 2, 36, 2),
    Sketcher.Constraint("Vertical", 35, 2, 38, 2),
    Sketcher.Constraint("Equal", 16, 25),
    Sketcher.Constraint("Equal", 34, 37),
    Sketcher.Constraint("Equal", 0, 1),
    Sketcher.Constraint("Equal", 1, 2),
    Sketcher.Constraint("Equal", 2, 3),
    Sketcher.Constraint("Equal", 6, 7),
    Sketcher.Constraint("Equal", 7, 8),
    Sketcher.Constraint("Equal", 8, 9),
    Sketcher.Constraint("Equal", 11, 12),
    Sketcher.Constraint("Equal", 18, 19),
    Sketcher.Constraint("Equal", 19, 20),
    Sketcher.Constraint("Equal", 20, 21),
    Sketcher.Constraint("Equal", 17, 24),
    Sketcher.Constraint("Equal", 41, 42),
    Sketcher.Constraint("Equal", 42, 43),
    Sketcher.Constraint("Equal", 43, 44),
    Sketcher.Constraint("Equal", 44, 45),
    Sketcher.Constraint("Angle", 12, Q("-30 deg")),
    Sketcher.Constraint("DistanceX", 14, 2, -1, 1, 93.0),
    Sketcher.Constraint("DistanceX", -1, 1, 24, 2, 56.0),
    Sketcher.Constraint("DistanceX", -1, 1, 27, 2, 49.0),
    Sketcher.Constraint("DistanceX", 2, 2, 0, 2, 5.547002),
    Sketcher.Constraint("Distance", 18, 3.464102),
    Sketcher.Constraint("DistanceY", 13, 2, 13, 1, 4.041452),
    Sketcher.Constraint("DistanceX", -1, 1, 0, 2, 76.437602),
    Sketcher.Constraint("DistanceX", -1, 1, 1, 2, 75.328201),
    Sketcher.Constraint("DistanceX", -1, 1, 3, 2, 67.562398),
    Sketcher.Constraint("DistanceY", -1, 1, 6, 2, 246.591898),
    Sketcher.Constraint("DistanceY", -1, 1, 9, 2, 241.408102),
    Sketcher.Constraint("DistanceX", 19, 2, -1, 1, 68.671799),
    Sketcher.Constraint("DistanceX", 22, 2, -1, 1, 75.328201),
    Sketcher.Constraint("DistanceY", 6, 2, 2, 2, 15.842298),
    Sketcher.Constraint("DistanceY", 8, 2, 7, 2, 2.591898),
    Sketcher.Constraint("DistanceX", 10, 2, 8, 2, 4.489299),
    Sketcher.Constraint("DistanceY", 13, 2, 5, 2, 29.422099),
    Sketcher.Constraint("DistanceY", 14, 2, 4, 2, 30.1618),
    Sketcher.Constraint("DistanceX", 20, 2, 18, 2, 1.664101),
    Sketcher.Constraint("DistanceX", 21, 2, 20, 2, 3.328201),
    Sketcher.Constraint("DistanceX", 45, 2, 43, 2, 6.802199),
    Sketcher.Constraint("DistanceY", 45, 2, 43, 2, 1.652298),
    Sketcher.Constraint("DistanceX", -1, 1, 6, 2, 96.10087),
    Sketcher.Constraint("DistanceY", -1, 1, 26, 2, 56.354779),
    Sketcher.Constraint("DistanceY", -1, 1, 36, 2, 38.938511),
    Sketcher.Constraint("DistanceY", -1, 1, 42, 2, 39.707559),
    Sketcher.Constraint("DistanceY", -1, 1, 43, 2, 35.780308),
    Sketcher.Constraint("DistanceY", 12, 2, 18, 2, 23.298981),
    Sketcher.Constraint("DistanceX", -1, 1, 42, 2, 55.424122),
])
pocket4 = doc.addObject("PartDesign::Pocket", "Pocket003")
body.addObject(pocket4)
pocket4.Profile = sketch5
pocket4.setExpression("Length", "Params.pocket4_length")
pocket4.Reversed = True

sketch6 = doc.addObject("Sketcher::SketchObject", "Sketch005")
body.addObject(sketch6)
sketch6.AttachmentSupport = (doc.XY_Plane, [""])
sketch6.MapMode = "FlatFace"
sketch6.AttachmentOffset = App.Placement(Vector(0, 0, 21), App.Rotation())
add_polygon(sketch6, [(-90, 234), (-105, 238), (-105, 179), (-60, 126), (-45, 122), (-90, 176)])
add_polygon(sketch6, [(105, 238), (90, 234), (90, 176), (45, 122), (60, 126), (105, 179)])
sketch6.addConstraint([
    Sketcher.Constraint("Vertical", 1),
    Sketcher.Constraint("Vertical", 5),
    Sketcher.Constraint("Vertical", 7),
    Sketcher.Constraint("Vertical", 11),
    Sketcher.Constraint("Symmetric", 5, 2, 6, 2, -2),
    Sketcher.Constraint("Symmetric", 3, 2, 8, 2, -2),
    Sketcher.Constraint("Symmetric", 2, 2, 9, 2, -2),
    Sketcher.Constraint("Symmetric", 1, 2, 10, 2, -2),
    Sketcher.Constraint("Parallel", 2, 4),
    Sketcher.Constraint("Parallel", 8, 10),
    Sketcher.Constraint("Horizontal", 0, 2, 11, 2),
    Sketcher.Constraint("Equal", 2, 4),
    Sketcher.Constraint("Angle", 2, Q("-50 deg")),
    Sketcher.Constraint("DistanceX", 0, 2, -1, 1, 105.0),
    Sketcher.Constraint("DistanceX", 2, 2, -1, 1, 60.0),
    Sketcher.Constraint("DistanceX", 3, 2, -1, 1, 45.0),
    Sketcher.Constraint("DistanceY", 5, 1, 5, 2, 58.39198),
    Sketcher.Constraint("DistanceY", 3, 2, 1, 2, 57.503701),
    Sketcher.Constraint("Distance", 0, 15.467448),
    Sketcher.Constraint("DistanceY", -1, 1, 0, 2, 237.712529),
])
pocket5 = doc.addObject("PartDesign::Pocket", "Pocket004")
body.addObject(pocket5)
pocket5.Profile = sketch6
pocket5.Type = "ThroughAll"

doc.recompute()
